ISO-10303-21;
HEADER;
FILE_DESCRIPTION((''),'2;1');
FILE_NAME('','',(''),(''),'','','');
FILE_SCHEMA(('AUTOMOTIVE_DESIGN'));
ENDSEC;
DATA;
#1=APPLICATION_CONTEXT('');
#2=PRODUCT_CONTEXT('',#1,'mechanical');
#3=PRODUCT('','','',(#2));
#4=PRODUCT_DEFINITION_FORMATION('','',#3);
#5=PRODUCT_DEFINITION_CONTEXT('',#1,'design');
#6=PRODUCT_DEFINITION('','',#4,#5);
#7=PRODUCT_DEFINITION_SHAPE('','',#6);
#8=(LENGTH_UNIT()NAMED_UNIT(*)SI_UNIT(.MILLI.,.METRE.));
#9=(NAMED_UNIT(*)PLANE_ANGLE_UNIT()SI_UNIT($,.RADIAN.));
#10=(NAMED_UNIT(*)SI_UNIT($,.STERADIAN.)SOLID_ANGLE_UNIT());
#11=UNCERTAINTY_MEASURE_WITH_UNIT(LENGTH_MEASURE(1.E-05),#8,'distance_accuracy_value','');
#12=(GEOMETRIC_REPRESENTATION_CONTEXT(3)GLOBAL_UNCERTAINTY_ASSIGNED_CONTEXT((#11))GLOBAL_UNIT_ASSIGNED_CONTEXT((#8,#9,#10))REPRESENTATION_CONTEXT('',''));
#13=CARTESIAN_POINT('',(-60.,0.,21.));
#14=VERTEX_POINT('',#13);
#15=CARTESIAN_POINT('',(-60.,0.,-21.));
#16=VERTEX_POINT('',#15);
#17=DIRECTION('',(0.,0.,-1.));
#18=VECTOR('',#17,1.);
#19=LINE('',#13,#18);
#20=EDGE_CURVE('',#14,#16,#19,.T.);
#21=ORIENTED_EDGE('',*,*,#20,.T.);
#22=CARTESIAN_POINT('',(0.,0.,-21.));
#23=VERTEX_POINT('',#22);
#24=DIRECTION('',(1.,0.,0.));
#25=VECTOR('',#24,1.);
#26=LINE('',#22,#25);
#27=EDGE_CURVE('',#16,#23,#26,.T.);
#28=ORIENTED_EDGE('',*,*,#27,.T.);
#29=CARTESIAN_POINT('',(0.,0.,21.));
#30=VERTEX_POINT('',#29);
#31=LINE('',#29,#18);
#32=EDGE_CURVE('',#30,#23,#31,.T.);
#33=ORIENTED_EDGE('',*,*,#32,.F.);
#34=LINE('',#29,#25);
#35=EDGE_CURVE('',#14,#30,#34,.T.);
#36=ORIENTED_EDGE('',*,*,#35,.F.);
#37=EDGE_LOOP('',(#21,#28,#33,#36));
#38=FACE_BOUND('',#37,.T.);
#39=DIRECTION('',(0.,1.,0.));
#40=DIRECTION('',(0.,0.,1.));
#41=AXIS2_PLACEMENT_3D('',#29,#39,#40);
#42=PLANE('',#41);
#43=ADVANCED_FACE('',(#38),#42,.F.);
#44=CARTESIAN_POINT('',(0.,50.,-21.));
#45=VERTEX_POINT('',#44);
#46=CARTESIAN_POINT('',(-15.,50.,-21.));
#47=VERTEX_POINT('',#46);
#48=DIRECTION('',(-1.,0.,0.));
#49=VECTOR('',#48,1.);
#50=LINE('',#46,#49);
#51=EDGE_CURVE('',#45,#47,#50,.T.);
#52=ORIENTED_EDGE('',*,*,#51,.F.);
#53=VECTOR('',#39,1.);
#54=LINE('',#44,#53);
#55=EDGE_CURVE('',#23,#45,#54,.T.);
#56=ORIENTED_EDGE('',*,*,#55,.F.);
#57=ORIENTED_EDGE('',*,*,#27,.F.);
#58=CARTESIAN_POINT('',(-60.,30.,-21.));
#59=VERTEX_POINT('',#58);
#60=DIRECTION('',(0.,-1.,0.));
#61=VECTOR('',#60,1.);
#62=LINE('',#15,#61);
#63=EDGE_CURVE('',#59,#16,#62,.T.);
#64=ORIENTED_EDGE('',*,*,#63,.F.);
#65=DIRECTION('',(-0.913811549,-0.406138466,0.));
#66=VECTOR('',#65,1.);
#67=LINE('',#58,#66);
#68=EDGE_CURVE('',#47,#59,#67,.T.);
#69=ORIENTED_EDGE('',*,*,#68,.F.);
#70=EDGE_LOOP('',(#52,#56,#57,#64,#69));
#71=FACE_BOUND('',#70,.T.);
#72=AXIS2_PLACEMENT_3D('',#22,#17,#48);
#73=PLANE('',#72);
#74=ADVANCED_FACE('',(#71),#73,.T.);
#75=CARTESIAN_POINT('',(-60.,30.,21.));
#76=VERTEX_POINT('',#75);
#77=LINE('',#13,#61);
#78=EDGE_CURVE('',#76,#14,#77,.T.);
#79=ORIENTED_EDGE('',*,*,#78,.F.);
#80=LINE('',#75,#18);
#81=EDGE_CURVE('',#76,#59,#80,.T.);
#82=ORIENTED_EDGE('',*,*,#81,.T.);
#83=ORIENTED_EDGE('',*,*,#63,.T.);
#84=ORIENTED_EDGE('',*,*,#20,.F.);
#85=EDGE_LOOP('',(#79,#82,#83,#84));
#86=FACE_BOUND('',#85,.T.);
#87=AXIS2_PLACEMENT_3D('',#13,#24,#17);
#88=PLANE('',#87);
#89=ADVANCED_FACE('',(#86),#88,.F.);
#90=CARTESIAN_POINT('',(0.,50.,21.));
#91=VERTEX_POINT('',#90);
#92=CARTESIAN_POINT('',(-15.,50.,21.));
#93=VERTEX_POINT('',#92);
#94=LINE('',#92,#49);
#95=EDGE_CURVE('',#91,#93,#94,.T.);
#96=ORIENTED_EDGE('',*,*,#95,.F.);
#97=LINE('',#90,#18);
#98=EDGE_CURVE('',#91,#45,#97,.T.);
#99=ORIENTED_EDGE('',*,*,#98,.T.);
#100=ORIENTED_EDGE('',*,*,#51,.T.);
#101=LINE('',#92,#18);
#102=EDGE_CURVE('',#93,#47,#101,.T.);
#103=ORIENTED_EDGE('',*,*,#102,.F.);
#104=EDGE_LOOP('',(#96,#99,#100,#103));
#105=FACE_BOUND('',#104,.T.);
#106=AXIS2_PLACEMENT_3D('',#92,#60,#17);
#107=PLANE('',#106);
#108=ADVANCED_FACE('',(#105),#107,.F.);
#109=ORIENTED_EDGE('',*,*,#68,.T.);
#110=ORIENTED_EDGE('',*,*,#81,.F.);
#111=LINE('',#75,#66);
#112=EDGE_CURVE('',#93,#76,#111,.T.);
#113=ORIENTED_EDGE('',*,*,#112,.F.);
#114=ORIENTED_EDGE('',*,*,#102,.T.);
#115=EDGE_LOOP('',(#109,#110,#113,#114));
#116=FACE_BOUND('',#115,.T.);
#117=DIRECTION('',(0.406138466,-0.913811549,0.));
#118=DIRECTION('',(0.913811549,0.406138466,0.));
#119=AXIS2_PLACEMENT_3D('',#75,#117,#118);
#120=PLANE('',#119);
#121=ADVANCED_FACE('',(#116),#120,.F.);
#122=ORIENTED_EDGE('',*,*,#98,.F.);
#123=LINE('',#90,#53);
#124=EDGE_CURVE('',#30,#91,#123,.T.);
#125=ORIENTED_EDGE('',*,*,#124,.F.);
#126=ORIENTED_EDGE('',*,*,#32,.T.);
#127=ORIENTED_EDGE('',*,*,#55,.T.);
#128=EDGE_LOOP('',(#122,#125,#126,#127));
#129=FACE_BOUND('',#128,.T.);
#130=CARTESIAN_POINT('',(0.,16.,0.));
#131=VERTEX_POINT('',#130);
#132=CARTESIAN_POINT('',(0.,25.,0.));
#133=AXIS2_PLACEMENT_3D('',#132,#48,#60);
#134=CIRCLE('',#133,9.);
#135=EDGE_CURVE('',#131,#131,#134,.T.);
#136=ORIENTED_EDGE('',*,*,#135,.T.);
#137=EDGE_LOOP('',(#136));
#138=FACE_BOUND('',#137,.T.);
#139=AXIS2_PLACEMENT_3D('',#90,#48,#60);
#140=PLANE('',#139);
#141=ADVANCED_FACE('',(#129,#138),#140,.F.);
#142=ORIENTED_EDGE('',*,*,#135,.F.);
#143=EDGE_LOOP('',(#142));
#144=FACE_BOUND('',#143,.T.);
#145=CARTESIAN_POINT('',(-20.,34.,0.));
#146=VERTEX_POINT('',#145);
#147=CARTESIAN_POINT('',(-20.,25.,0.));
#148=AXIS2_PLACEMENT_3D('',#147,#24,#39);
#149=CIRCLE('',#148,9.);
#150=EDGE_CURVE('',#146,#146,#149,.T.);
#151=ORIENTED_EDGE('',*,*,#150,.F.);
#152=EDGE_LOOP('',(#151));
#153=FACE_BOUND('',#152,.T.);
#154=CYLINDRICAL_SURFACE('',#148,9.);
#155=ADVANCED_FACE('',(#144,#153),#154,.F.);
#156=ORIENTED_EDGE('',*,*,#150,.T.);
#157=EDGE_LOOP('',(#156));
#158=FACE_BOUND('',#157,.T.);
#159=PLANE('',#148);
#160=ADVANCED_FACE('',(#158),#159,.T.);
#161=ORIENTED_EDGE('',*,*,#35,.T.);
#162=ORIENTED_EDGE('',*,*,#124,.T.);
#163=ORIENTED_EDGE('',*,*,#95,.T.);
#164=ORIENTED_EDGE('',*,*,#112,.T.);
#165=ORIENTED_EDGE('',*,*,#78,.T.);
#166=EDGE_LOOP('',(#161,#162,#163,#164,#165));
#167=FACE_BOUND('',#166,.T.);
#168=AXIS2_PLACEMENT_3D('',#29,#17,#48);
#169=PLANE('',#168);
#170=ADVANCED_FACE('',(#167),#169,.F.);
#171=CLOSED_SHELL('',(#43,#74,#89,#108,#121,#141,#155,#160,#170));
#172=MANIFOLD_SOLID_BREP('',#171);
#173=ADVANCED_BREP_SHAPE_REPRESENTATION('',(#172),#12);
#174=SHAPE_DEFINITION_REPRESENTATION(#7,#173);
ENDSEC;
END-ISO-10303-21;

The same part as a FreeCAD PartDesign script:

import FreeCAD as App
import Part
import Sketcher

V = App.Vector
Q = App.Units.Quantity


def add_polygon(sketch, points):
    """Adds a closed chain of lines whose ends are joined by coincident constraints."""
    first, n = sketch.GeometryCount, len(points)
    for a, b in zip(points, points[1:] + points[:1]):
        sketch.addGeometry(Part.LineSegment(App.Vector(*a, 0), App.Vector(*b, 0)), False)
    for i in range(n):
        sketch.addConstraint(Sketcher.Constraint("Coincident", first + i, 2, first + (i + 1) % n, 1))

doc = App.newDocument("Part")
params = doc.addObject("Spreadsheet::Sheet", "Params")
for row, (alias, value) in enumerate([
    ("sketch1_width", "60 mm"),
    ("sketch1_width2", "15 mm"),
    ("sketch1_height", "50 mm"),
    ("sketch1_height2", "30 mm"),
    ("pad1_length", "42 mm"),
    ("sketch2_diameter", "18 mm"),
    ("pocket1_length", "40 mm"),
], start=1):
    params.set(f"A{row}", alias)
    params.set(f"B{row}", "=" + value)
    params.setAlias(f"B{row}", alias)

body = doc.addObject("PartDesign::Body", "Body")

# Sketch on XY plane
sketch1 = doc.addObject("Sketcher::SketchObject", "Sketch")
body.addObject(sketch1)
sketch1.AttachmentSupport = (doc.XY_Plane, [""])
sketch1.MapMode = "FlatFace"
add_polygon(sketch1, [(-60, 0), (0, 0), (0, 50), (-15, 50), (-60, 30)])  # lines 0-4
sketch1.addConstraint(Sketcher.Constraint("Horizontal", 0))
sketch1.addConstraint(Sketcher.Constraint("Vertical", 1))
sketch1.addConstraint(Sketcher.Constraint("Horizontal", 2))
sketch1.addConstraint(Sketcher.Constraint("Vertical", 4))
sketch1.addConstraint(Sketcher.Constraint("Coincident", 0, 2, -1, 1))
sketch1.addConstraint(Sketcher.Constraint("DistanceX", 0, 1, 0, 2, Q("60 mm")))
sketch1.addConstraint(Sketcher.Constraint("DistanceX", 2, 2, 2, 1, Q("15 mm")))
sketch1.addConstraint(Sketcher.Constraint("DistanceY", 1, 1, 1, 2, Q("50 mm")))
sketch1.addConstraint(Sketcher.Constraint("DistanceY", 4, 2, 4, 1, Q("30 mm")))
sketch1.setExpression("Constraints[10]", "Params.sketch1_width")
sketch1.setExpression("Constraints[11]", "Params.sketch1_width2")
sketch1.setExpression("Constraints[12]", "Params.sketch1_height")
sketch1.setExpression("Constraints[13]", "Params.sketch1_height2")
pad1 = doc.addObject("PartDesign::Pad", "Pad")
body.addObject(pad1)
pad1.Profile = sketch1
pad1.setExpression("Length", "Params.pad1_length")
pad1.Midplane = True

# Sketch on YZ plane
sketch2 = doc.addObject("Sketcher::SketchObject", "Sketch001")
body.addObject(sketch2)
sketch2.AttachmentSupport = (doc.YZ_Plane, [""])
sketch2.MapMode = "FlatFace"
sketch2.addGeometry(Part.Circle(V(25, 0, 0), V(0, 0, 1), 9), False)
sketch2.addConstraint(Sketcher.Constraint("PointOnObject", 0, 3, -1))
sketch2.addConstraint(Sketcher.Constraint("Diameter", 0, Q("18 mm")))
sketch2.addConstraint(Sketcher.Constraint("DistanceX", -1, 1, 0, 3, Q("25 mm")))
sketch2.setExpression("Constraints[1]", "Params.sketch2_diameter")
pocket1 = doc.addObject("PartDesign::Pocket", "Pocket")
body.addObject(pocket1)
pocket1.Profile = sketch2
pocket1.setExpression("Length", "Params.pocket1_length")
pocket1.Midplane = True

doc.recompute()
